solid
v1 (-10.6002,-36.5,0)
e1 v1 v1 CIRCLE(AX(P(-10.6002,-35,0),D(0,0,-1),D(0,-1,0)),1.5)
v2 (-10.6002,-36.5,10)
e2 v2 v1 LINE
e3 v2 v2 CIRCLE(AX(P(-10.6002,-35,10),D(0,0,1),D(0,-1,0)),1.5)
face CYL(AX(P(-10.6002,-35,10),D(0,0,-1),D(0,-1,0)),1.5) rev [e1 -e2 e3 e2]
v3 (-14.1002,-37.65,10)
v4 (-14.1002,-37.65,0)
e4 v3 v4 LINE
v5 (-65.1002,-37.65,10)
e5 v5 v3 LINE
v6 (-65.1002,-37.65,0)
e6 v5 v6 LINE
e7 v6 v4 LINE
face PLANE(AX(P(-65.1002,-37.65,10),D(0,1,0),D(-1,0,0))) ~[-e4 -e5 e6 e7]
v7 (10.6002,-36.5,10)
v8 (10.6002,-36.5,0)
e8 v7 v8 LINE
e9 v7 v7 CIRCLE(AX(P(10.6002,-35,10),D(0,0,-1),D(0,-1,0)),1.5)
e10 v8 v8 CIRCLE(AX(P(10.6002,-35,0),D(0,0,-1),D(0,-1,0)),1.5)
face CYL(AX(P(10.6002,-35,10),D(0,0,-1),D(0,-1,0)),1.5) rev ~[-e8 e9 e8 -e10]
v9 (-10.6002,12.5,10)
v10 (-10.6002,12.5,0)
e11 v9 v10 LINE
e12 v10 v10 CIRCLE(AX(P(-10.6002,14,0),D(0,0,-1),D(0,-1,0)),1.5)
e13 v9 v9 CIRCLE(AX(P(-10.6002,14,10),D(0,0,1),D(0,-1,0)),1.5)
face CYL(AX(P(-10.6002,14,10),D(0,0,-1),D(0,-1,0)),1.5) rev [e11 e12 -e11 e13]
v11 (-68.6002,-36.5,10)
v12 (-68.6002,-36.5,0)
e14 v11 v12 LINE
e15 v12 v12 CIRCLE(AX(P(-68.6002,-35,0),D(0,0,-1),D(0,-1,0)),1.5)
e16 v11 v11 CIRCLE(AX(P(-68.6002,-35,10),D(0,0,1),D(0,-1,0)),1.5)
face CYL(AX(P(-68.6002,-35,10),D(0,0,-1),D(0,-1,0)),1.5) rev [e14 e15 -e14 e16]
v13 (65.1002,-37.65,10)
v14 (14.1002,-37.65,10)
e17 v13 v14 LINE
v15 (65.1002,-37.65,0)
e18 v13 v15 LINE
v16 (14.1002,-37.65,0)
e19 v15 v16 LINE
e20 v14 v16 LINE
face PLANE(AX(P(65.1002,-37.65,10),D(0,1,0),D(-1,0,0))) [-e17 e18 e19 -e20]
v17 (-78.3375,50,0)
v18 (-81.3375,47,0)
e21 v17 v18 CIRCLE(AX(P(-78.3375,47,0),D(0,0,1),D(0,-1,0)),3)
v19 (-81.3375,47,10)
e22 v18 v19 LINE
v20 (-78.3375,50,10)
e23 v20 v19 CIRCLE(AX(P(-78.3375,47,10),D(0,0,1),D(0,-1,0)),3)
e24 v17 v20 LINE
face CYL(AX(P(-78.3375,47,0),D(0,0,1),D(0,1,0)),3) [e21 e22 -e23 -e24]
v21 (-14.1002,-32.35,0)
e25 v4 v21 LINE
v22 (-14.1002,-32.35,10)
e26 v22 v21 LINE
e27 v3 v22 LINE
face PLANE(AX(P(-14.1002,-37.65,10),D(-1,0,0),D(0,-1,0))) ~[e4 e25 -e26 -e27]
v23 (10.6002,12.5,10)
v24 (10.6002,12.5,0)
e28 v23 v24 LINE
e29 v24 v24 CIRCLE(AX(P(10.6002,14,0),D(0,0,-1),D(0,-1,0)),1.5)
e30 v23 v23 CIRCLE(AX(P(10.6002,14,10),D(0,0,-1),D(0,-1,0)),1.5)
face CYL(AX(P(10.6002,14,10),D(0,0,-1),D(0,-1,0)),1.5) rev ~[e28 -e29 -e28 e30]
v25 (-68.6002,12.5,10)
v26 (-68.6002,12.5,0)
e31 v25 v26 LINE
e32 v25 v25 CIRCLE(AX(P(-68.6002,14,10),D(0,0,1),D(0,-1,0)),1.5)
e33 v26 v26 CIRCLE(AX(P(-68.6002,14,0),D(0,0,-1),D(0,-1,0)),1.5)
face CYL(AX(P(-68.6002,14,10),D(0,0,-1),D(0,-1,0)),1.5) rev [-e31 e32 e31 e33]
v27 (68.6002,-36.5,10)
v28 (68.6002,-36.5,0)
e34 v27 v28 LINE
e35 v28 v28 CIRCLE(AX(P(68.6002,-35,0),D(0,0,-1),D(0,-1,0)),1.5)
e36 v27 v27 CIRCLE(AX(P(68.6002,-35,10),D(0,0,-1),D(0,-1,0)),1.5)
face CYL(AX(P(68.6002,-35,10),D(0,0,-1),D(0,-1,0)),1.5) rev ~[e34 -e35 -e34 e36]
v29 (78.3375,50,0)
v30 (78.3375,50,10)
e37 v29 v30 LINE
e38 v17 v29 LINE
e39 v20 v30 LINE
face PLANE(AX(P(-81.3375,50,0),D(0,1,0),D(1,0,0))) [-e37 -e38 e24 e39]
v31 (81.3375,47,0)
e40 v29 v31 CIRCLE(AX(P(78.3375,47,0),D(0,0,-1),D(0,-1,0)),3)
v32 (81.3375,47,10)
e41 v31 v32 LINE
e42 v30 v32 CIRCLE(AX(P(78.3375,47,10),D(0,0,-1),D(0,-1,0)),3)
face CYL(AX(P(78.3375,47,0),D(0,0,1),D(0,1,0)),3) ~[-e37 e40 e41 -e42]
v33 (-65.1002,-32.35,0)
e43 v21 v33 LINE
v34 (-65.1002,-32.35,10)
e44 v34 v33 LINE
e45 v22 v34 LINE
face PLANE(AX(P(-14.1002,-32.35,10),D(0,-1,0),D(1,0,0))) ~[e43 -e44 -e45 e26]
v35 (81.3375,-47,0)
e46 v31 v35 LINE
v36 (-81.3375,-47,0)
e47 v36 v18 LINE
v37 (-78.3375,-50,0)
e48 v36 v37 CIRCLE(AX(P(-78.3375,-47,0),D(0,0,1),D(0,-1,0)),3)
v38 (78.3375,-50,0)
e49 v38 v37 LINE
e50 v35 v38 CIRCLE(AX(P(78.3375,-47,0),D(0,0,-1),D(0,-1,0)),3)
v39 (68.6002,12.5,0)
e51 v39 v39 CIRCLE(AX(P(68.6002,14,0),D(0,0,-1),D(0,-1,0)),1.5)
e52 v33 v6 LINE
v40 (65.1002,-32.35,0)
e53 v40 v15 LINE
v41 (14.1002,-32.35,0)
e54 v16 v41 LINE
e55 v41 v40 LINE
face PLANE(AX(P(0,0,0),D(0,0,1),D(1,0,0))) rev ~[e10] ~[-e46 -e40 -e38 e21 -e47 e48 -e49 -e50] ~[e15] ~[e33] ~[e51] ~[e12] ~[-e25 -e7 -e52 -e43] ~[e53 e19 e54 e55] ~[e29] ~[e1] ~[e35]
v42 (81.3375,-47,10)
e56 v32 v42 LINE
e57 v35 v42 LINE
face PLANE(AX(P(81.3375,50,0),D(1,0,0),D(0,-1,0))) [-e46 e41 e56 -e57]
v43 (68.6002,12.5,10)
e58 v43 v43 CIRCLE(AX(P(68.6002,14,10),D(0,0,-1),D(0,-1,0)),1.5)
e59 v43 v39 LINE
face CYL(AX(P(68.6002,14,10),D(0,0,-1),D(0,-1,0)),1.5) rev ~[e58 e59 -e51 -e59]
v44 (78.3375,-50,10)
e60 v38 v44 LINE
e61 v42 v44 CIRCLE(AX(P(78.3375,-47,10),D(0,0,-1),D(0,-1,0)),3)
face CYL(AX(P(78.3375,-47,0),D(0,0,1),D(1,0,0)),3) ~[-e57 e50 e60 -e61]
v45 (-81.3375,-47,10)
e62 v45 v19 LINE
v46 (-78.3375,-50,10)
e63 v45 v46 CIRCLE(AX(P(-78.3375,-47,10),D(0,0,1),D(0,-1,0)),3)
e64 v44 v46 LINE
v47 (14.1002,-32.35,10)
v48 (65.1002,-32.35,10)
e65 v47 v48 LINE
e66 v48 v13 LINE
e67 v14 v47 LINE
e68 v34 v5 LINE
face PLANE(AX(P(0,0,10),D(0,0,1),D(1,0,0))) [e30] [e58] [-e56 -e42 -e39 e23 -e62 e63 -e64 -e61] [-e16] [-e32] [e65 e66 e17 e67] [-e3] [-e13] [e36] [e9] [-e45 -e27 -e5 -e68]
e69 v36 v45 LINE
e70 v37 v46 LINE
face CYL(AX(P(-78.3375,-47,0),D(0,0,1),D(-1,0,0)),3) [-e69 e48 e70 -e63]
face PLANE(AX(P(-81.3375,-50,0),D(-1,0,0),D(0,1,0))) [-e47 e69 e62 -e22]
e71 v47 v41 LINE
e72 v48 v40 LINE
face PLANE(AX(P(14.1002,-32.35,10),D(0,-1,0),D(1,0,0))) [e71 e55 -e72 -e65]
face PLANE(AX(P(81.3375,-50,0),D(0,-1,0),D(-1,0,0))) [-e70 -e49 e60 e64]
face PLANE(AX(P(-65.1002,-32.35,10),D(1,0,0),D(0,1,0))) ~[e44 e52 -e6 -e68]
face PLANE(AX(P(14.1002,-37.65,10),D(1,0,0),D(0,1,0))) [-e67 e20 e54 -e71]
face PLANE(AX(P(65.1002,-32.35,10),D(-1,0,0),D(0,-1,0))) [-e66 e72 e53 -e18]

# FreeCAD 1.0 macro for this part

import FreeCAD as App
import Part
import Sketcher
Q = App.Units.Quantity


def edges_at(feature, points):
    """Names of the edges that pass closest to the given points."""
    edges = feature.Shape.Edges
    near = lambda p: min(range(len(edges)), key=lambda i: edges[i].distToShape(Part.Vertex(*p))[0])
    return sorted({f"Edge{near(p) + 1}" for p in points})


def add_polygon(sketch, points):
    """Adds a closed chain of lines whose ends are joined by coincident constraints."""
    first, n = sketch.GeometryCount, len(points)
    for a, b in zip(points, points[1:] + points[:1]):
        sketch.addGeometry(Part.LineSegment(App.Vector(*a, 0), App.Vector(*b, 0)), False)
    for i in range(n):
        sketch.addConstraint(Sketcher.Constraint("Coincident", first + i, 2, first + (i + 1) % n, 1))

doc = App.newDocument("Part")
params = doc.addObject("Spreadsheet::Sheet", "Params")
for row, (alias, value) in enumerate([
    ("sketch1_height", "100 mm"),
    ("pad1_length", "10 mm"),
    ("sketch2_diameter", "3 mm"),
    ("hole_diameter", "3 mm"),
    ("sketch3_width", "51 mm"),
    ("sketch3_height", "5.3 mm"),
    ("fillet_radius", "3 mm"),
], start=1):
    params.set(f"A{row}", alias)
    params.set(f"B{row}", "=" + value)
    params.setAlias(f"B{row}", alias)

body = doc.addObject("PartDesign::Body", "Body")

# Sketch on XY plane
sketch1 = body.newObject("Sketcher::SketchObject", "Sketch")
sketch1.AttachmentSupport = (doc.getObject("XY_Plane"), [""])
sketch1.MapMode = "FlatFace"
add_polygon(sketch1, [(81.3375, 50), (-81.3375, 50), (-81.3375, -50), (81.3375, -50)])  # lines 0-3
sketch1.addConstraint([
    Sketcher.Constraint("Horizontal", 0),
    Sketcher.Constraint("Vertical", 1),
    Sketcher.Constraint("Horizontal", 2),
    Sketcher.Constraint("Vertical", 3),
    Sketcher.Constraint("Symmetric", 0, 2, 2, 2, -1, 1),
    Sketcher.Constraint("DistanceY", 1, 2, 1, 1, Q("100 mm")),
    Sketcher.Constraint("DistanceX", 0, 2, 0, 1, Q("162.675 mm")),
])
sketch1.setExpression("Constraints[9]", "Params.sketch1_height")
pad1 = body.newObject("PartDesign::Pad", "Pad")
pad1.Profile = sketch1
pad1.setExpression("Length", "Params.pad1_length")

# Sketch on XY plane
sketch2 = body.newObject("Sketcher::SketchObject", "Sketch001")
sketch2.AttachmentSupport = (doc.getObject("XY_Plane"), [""])
sketch2.MapMode = "FlatFace"
sketch2.AttachmentOffset = App.Placement(App.Vector(0, 0, 10), App.Rotation())
sketch2.addGeometry([
    Part.Circle(App.Vector(10.6002, 14, 0), App.Vector(0, 0, 1), 1.5),
    Part.Circle(App.Vector(68.6002, 14, 0), App.Vector(0, 0, 1), 1.5),
    Part.Circle(App.Vector(68.6002, -35, 0), App.Vector(0, 0, 1), 1.5),
    Part.Circle(App.Vector(10.6002, -35, 0), App.Vector(0, 0, 1), 1.5),
], False)
sketch2.addConstraint([
    Sketcher.Constraint("Equal", 0, 1),
    Sketcher.Constraint("Equal", 1, 2),
    Sketcher.Constraint("Equal", 2, 3),
    Sketcher.Constraint("Horizontal", 0, 3, 1, 3),
    Sketcher.Constraint("Horizontal", 2, 3, 3, 3),
    Sketcher.Constraint("Vertical", 1, 3, 2, 3),
    Sketcher.Constraint("Vertical", 0, 3, 3, 3),
    Sketcher.Constraint("Diameter", 0, Q("3 mm")),
    Sketcher.Constraint("DistanceY", -1, 1, 0, 3, Q("14 mm")),
    Sketcher.Constraint("DistanceY", 2, 3, -1, 1, Q("35 mm")),
    Sketcher.Constraint("DistanceX", 0, 3, 1, 3, Q("58 mm")),
    Sketcher.Constraint("DistanceX", -1, 1, 0, 3, Q("10.6002 mm")),
])
sketch2.setExpression("Constraints[7]", "Params.sketch2_diameter")
doc.recompute()
hole = body.newObject("PartDesign::Hole", "Hole")
hole.Profile = sketch2
hole.ThreadType = "None"
hole.setExpression("Diameter", "Params.hole_diameter")
hole.DepthType = "ThroughAll"

# Sketch on XY plane
sketch3 = body.newObject("Sketcher::SketchObject", "Sketch002")
sketch3.AttachmentSupport = (doc.getObject("XY_Plane"), [""])
sketch3.MapMode = "FlatFace"
sketch3.AttachmentOffset = App.Placement(App.Vector(0, 0, 10), App.Rotation())
add_polygon(sketch3, [(65.1002, -32.35), (14.1002, -32.35), (14.1002, -37.65), (65.1002, -37.65)])  # lines 0-3
sketch3.addConstraint([
    Sketcher.Constraint("Horizontal", 0),
    Sketcher.Constraint("Vertical", 1),
    Sketcher.Constraint("Horizontal", 2),
    Sketcher.Constraint("Vertical", 3),
    Sketcher.Constraint("DistanceX", 0, 2, 0, 1, Q("51 mm")),
    Sketcher.Constraint("DistanceY", 1, 2, 1, 1, Q("5.3 mm")),
    Sketcher.Constraint("DistanceY", 0, 2, -1, 1, Q("32.35 mm")),
    Sketcher.Constraint("DistanceX", -1, 1, 0, 2, Q("14.1002 mm")),
])
sketch3.setExpression("Constraints[8]", "Params.sketch3_width")
sketch3.setExpression("Constraints[9]", "Params.sketch3_height")
pocket1 = body.newObject("PartDesign::Pocket", "Pocket")
pocket1.Profile = sketch3
pocket1.Type = "ThroughAll"
doc.recompute()

mirrored = body.newObject("PartDesign::Mirrored", "Mirrored")
mirrored.Originals = [hole, pocket1]
mirrored.MirrorPlane = (doc.getObject("YZ_Plane"), [""])
body.Tip = mirrored
doc.recompute()

fillet = body.newObject("PartDesign::Fillet", "Fillet")
fillet.Base = (mirrored, edges_at(mirrored, [
    (81.338, 50, 5),
    (-81.338, 50, 5),
    (-81.338, -50, 5),
    (81.338, -50, 5),
]))
fillet.setExpression("Radius", "Params.fillet_radius")

doc.recompute()
